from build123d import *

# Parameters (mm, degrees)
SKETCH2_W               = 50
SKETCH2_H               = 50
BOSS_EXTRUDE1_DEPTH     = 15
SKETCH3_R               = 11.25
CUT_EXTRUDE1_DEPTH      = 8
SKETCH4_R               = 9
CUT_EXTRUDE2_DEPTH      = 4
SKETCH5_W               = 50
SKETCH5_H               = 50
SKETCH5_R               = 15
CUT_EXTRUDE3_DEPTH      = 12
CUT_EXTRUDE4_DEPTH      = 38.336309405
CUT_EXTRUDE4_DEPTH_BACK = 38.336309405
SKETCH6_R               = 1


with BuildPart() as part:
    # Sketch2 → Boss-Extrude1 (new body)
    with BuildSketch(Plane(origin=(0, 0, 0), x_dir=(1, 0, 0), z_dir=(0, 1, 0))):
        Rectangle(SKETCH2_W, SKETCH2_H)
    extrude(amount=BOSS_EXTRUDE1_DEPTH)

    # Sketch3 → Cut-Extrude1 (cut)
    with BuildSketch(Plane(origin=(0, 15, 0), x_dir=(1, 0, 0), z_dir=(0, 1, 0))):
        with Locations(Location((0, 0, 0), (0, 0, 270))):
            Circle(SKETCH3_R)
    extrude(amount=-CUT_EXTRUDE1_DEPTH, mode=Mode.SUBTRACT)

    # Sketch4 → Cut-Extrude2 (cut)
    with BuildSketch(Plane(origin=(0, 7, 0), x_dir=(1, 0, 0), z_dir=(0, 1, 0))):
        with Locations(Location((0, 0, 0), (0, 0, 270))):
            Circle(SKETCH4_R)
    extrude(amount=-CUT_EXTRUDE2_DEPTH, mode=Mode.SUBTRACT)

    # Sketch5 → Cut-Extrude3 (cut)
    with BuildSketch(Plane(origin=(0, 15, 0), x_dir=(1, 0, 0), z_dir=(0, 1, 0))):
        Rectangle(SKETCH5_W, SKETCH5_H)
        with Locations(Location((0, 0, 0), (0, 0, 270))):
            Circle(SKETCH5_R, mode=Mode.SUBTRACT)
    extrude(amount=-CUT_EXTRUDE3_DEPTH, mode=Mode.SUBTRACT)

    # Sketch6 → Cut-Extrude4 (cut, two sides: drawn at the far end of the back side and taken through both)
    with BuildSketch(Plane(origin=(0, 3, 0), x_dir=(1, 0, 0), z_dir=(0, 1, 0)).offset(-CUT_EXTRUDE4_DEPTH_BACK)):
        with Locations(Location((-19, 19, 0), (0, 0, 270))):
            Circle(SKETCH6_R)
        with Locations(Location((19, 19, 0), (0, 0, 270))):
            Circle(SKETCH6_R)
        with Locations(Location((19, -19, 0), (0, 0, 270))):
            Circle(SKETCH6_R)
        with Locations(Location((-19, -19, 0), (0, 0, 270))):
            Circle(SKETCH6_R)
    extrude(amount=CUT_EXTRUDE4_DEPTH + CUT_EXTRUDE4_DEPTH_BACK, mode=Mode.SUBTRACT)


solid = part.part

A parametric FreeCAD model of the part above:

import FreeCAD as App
import Part
import Sketcher


def add_polygon(sketch, points):
    """Adds a closed chain of lines whose ends are joined by coincident constraints."""
    first, n = sketch.GeometryCount, len(points)
    for a, b in zip(points, points[1:] + points[:1]):
        sketch.addGeometry(Part.LineSegment(App.Vector(*a, 0), App.Vector(*b, 0)), False)
    for i in range(n):
        sketch.addConstraint(Sketcher.Constraint("Coincident", first + i, 2, first + (i + 1) % n, 1))

doc = App.newDocument("Part")
body = doc.addObject("PartDesign::Body", "Body")

# Sketch on XZ plane
sketch1 = body.newObject("Sketcher::SketchObject", "Sketch")
sketch1.AttachmentSupport = (doc.getObject("XZ_Plane"), [""])
sketch1.MapMode = "FlatFace"
add_polygon(sketch1, [(-25, -25), (-25, 25), (25, 25), (25, -25)])  # lines 0-3
sketch1.addConstraint([
    Sketcher.Constraint("Vertical", 0),
    Sketcher.Constraint("Horizontal", 1),
    Sketcher.Constraint("Vertical", 2),
    Sketcher.Constraint("Horizontal", 3),
    Sketcher.Constraint("Symmetric", 0, 2, 2, 2, -1, 1),
    Sketcher.Constraint("Equal", 3, 0),
    Sketcher.Constraint("DistanceX", 1, 1, 1, 2, 50.0),
])
pad1 = body.newObject("PartDesign::Pad", "Pad")
pad1.Profile = sketch1
pad1.Length = 15
pad1.Reversed = True

# Sketch on XZ plane
sketch2 = body.newObject("Sketcher::SketchObject", "Sketch001")
sketch2.AttachmentSupport = (doc.getObject("XZ_Plane"), [""])
sketch2.MapMode = "FlatFace"
sketch2.AttachmentOffset = App.Placement(App.Vector(0, 0, -15), App.Rotation())
sketch2.addGeometry(Part.Circle(App.Vector(0, 0, 0), App.Vector(0, 0, 1), 11), False)
sketch2.addConstraint([
    Sketcher.Constraint("Coincident", 0, 3, -1, 1),
    Sketcher.Constraint("Diameter", 0, 22.5),
])
pocket1 = body.newObject("PartDesign::Pocket", "Pocket")
pocket1.Profile = sketch2
pocket1.Length = 8
pocket1.Reversed = True

# Sketch on XZ plane
sketch3 = body.newObject("Sketcher::SketchObject", "Sketch002")
sketch3.AttachmentSupport = (doc.getObject("XZ_Plane"), [""])
sketch3.MapMode = "FlatFace"
sketch3.AttachmentOffset = App.Placement(App.Vector(0, 0, -7), App.Rotation())
sketch3.addGeometry(Part.Circle(App.Vector(0, 0, 0), App.Vector(0, 0, 1), 9), False)
sketch3.addConstraint([
    Sketcher.Constraint("Coincident", 0, 3, -1, 1),
    Sketcher.Constraint("Diameter", 0, 18.0),
])
pocket2 = body.newObject("PartDesign::Pocket", "Pocket001")
pocket2.Profile = sketch3
pocket2.Length = 4
pocket2.Reversed = True

# Sketch on XZ plane
sketch4 = body.newObject("Sketcher::SketchObject", "Sketch003")
sketch4.AttachmentSupport = (doc.getObject("XZ_Plane"), [""])
sketch4.MapMode = "FlatFace"
sketch4.AttachmentOffset = App.Placement(App.Vector(0, 0, -15), App.Rotation())
add_polygon(sketch4, [(-25, -25), (-25, 25), (25, 25), (25, -25)])  # lines 0-3
sketch4.addGeometry(Part.Circle(App.Vector(0, 0, 0), App.Vector(0, 0, 1), 15), False)  # 4
sketch4.addConstraint([
    Sketcher.Constraint("Vertical", 0),
    Sketcher.Constraint("Horizontal", 1),
    Sketcher.Constraint("Vertical", 2),
    Sketcher.Constraint("Horizontal", 3),
    Sketcher.Constraint("Coincident", 4, 3, -1, 1),
    Sketcher.Constraint("Symmetric", 0, 2, 2, 2, -1, 1),
    Sketcher.Constraint("Equal", 3, 0),
    Sketcher.Constraint("Diameter", 4, 30.0),
    Sketcher.Constraint("DistanceX", 1, 1, 1, 2, 50.0),
])
pocket3 = body.newObject("PartDesign::Pocket", "Pocket002")
pocket3.Profile = sketch4
pocket3.Length = 12
pocket3.Reversed = True

# Sketch on XZ plane
sketch5 = body.newObject("Sketcher::SketchObject", "Sketch004")
sketch5.AttachmentSupport = (doc.getObject("XZ_Plane"), [""])
sketch5.MapMode = "FlatFace"
sketch5.AttachmentOffset = App.Placement(App.Vector(0, 0, -3), App.Rotation())
sketch5.addGeometry([
    Part.Circle(App.Vector(-19, -19, 0), App.Vector(0, 0, 1), 1),
    Part.Circle(App.Vector(19, -19, 0), App.Vector(0, 0, 1), 1),
    Part.Circle(App.Vector(19, 19, 0), App.Vector(0, 0, 1), 1),
    Part.Circle(App.Vector(-19, 19, 0), App.Vector(0, 0, 1), 1),
], False)
sketch5.addConstraint([
    Sketcher.Constraint("Equal", 0, 1),
    Sketcher.Constraint("Equal", 1, 2),
    Sketcher.Constraint("Equal", 2, 3),
    Sketcher.Constraint("Symmetric", 0, 3, 2, 3, -1, 1),
    Sketcher.Constraint("Symmetric", 1, 3, 3, 3, -1, 1),
    Sketcher.Constraint("Symmetric", 0, 3, 1, 3, -2),
    Sketcher.Constraint("Diameter", 0, 2.0),
    Sketcher.Constraint("DistanceX", 0, 3, -1, 1, 19.0),
    Sketcher.Constraint("DistanceY", 0, 3, -1, 1, 19.0),
])
pocket4 = body.newObject("PartDesign::Pocket", "Pocket003")
pocket4.Profile = sketch5
pocket4.Type = "ThroughAll"
pocket4.Midplane = True

doc.recompute()
